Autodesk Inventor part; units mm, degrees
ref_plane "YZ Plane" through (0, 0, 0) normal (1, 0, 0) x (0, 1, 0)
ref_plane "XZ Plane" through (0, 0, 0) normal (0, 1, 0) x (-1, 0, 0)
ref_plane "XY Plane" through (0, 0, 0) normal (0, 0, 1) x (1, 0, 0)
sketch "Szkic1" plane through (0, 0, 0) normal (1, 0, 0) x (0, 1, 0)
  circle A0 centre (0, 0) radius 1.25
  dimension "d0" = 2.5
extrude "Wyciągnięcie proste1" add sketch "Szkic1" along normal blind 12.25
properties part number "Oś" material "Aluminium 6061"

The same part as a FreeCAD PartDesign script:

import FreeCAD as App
import Part
import Sketcher

V = App.Vector

doc = App.newDocument("Part")
body = doc.addObject("PartDesign::Body", "Body")

# Sketch on YZ plane
sketch1 = body.newObject("Sketcher::SketchObject", "Sketch")
sketch1.AttachmentSupport = (doc.getObject("YZ_Plane"), [""])
sketch1.MapMode = "FlatFace"
sketch1.addGeometry(Part.Circle(V(0, 0, 0), V(0, 0, 1), 1.2), False)
sketch1.addConstraint(Sketcher.Constraint("Coincident", 0, 3, -1, 1))
sketch1.addConstraint(Sketcher.Constraint("Diameter", 0, 2.5))
pad1 = body.newObject("PartDesign::Pad", "Pad")
pad1.Profile = sketch1
pad1.Length = 12.25

doc.recompute()
